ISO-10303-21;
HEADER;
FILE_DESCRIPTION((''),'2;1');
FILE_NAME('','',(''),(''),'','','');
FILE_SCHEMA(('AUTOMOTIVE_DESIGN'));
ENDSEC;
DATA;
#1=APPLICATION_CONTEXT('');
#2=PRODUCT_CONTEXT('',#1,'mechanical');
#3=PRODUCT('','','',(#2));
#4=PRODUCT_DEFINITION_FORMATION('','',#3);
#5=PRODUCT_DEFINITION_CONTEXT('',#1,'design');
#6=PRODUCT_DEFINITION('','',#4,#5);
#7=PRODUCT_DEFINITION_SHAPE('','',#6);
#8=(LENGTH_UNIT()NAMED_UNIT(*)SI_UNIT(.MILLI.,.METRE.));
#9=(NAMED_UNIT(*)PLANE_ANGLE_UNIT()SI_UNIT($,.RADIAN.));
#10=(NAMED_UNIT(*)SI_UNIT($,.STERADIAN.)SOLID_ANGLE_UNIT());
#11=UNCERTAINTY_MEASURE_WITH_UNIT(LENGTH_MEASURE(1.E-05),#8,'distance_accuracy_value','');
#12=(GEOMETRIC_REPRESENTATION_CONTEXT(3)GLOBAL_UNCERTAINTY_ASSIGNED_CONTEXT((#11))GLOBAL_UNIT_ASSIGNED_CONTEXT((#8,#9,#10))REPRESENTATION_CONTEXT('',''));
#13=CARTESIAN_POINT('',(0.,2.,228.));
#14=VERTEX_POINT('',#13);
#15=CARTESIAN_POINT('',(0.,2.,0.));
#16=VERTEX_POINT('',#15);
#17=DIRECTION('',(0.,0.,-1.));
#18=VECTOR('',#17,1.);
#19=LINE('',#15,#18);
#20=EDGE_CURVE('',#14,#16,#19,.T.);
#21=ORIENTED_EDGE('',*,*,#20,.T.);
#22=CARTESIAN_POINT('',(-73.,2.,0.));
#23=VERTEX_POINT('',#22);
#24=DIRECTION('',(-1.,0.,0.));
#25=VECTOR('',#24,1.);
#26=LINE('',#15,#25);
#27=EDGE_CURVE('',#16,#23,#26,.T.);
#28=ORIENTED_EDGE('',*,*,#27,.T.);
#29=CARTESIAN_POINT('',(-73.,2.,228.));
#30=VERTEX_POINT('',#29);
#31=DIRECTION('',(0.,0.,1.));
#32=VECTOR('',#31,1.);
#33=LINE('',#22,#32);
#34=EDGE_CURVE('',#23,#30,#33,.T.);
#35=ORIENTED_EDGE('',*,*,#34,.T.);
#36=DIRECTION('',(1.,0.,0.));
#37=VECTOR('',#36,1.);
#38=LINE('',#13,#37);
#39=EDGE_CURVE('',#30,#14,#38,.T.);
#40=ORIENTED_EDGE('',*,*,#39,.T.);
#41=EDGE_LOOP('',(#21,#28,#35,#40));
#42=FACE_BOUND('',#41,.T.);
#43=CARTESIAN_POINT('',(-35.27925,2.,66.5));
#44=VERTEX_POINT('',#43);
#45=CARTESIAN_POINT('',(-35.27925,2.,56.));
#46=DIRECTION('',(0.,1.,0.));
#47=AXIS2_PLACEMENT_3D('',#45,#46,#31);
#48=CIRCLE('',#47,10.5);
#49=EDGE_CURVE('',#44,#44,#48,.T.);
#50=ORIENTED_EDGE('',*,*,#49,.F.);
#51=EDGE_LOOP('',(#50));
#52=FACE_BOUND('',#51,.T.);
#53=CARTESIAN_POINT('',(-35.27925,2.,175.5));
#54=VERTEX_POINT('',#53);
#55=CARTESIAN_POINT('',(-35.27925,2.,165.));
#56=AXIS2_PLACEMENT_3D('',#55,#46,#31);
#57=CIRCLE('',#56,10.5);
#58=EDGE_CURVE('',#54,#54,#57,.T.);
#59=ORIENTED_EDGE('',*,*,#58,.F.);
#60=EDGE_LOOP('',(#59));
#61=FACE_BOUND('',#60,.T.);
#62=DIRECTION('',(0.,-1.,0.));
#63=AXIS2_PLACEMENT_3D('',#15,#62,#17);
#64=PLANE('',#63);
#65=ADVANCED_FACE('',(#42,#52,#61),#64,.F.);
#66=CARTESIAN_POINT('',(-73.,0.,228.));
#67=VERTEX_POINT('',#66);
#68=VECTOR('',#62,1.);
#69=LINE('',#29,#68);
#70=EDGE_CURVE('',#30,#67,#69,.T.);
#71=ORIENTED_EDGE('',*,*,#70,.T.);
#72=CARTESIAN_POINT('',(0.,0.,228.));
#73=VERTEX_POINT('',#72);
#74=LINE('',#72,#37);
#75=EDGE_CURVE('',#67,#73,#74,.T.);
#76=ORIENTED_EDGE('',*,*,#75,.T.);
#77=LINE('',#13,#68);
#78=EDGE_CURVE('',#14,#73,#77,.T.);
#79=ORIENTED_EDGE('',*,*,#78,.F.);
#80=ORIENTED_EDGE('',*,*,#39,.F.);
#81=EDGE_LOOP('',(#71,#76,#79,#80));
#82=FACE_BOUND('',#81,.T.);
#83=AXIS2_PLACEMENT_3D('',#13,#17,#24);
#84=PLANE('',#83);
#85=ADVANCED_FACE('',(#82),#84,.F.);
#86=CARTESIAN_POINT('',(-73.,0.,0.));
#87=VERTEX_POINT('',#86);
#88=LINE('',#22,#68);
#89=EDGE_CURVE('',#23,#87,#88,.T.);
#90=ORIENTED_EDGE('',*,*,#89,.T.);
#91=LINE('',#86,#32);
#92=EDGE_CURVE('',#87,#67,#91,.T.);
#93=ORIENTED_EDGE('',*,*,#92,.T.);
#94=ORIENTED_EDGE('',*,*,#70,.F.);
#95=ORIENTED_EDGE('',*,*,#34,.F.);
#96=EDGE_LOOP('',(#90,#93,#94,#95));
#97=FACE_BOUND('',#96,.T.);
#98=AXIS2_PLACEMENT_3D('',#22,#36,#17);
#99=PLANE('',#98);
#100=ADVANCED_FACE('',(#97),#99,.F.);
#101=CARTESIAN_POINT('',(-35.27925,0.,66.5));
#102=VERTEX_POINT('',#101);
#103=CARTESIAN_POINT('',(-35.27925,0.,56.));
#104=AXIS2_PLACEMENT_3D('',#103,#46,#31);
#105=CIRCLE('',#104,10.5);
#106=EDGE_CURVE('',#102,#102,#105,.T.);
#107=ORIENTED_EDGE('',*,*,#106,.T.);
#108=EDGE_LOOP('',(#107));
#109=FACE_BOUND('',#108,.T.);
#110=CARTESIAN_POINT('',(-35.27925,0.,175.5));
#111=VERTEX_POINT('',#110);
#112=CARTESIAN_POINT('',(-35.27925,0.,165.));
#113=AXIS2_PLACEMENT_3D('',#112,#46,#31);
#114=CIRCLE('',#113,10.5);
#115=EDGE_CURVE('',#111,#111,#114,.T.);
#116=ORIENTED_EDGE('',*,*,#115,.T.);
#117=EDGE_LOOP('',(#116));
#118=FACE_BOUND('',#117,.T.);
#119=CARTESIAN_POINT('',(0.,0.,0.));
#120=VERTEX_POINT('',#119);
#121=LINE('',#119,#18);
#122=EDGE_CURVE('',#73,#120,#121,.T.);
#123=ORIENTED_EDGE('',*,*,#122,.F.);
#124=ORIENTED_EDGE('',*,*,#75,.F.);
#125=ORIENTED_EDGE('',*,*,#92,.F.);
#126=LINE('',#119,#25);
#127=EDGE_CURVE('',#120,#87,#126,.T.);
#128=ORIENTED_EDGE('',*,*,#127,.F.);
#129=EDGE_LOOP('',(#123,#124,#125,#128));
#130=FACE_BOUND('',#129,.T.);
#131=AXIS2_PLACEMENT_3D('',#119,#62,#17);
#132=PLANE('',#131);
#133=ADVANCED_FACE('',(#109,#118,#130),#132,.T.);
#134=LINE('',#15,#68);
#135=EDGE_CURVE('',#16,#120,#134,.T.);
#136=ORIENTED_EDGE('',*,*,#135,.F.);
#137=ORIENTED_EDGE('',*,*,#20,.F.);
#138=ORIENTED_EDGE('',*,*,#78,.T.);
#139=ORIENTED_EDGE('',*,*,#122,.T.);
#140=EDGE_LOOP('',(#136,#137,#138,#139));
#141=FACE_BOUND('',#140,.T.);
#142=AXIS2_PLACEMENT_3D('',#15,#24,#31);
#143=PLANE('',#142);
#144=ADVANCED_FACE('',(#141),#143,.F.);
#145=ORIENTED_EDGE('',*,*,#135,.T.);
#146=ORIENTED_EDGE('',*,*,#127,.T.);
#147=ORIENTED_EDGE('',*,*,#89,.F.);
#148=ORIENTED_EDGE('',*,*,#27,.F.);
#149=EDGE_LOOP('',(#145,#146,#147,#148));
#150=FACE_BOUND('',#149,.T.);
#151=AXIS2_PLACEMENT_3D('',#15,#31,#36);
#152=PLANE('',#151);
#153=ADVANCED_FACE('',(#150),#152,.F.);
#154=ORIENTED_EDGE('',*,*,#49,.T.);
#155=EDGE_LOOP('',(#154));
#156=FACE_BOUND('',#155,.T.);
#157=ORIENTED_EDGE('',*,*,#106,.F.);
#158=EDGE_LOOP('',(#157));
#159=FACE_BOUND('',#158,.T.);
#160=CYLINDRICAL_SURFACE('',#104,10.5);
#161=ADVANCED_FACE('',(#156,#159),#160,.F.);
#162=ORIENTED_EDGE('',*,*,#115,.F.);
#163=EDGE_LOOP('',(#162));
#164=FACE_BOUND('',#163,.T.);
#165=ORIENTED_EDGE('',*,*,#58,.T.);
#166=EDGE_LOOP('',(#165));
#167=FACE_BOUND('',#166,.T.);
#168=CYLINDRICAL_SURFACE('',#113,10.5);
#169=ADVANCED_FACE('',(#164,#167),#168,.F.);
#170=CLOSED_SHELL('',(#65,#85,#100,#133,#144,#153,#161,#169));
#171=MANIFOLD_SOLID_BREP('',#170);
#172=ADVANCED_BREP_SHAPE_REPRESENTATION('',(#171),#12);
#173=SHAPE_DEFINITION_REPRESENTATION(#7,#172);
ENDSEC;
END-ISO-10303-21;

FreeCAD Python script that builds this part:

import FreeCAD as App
import Part
import Sketcher

V = App.Vector
Q = App.Units.Quantity


def add_polygon(sketch, points):
    """Adds a closed chain of lines whose ends are joined by coincident constraints."""
    first, n = sketch.GeometryCount, len(points)
    for a, b in zip(points, points[1:] + points[:1]):
        sketch.addGeometry(Part.LineSegment(App.Vector(*a, 0), App.Vector(*b, 0)), False)
    for i in range(n):
        sketch.addConstraint(Sketcher.Constraint("Coincident", first + i, 2, first + (i + 1) % n, 1))

doc = App.newDocument("Part")
body = doc.addObject("PartDesign::Body", "Body")

sketch1 = doc.addObject("Sketcher::SketchObject", "Sketch")
body.addObject(sketch1)
sketch1.AttachmentSupport = (doc.XZ_Plane, [""])
sketch1.MapMode = "FlatFace"
add_polygon(sketch1, [(-73, 0), (-73, 228), (0, 228), (0, 0)])
sketch1.addConstraint([
    Sketcher.Constraint("Vertical", 0),
    Sketcher.Constraint("Horizontal", 1),
    Sketcher.Constraint("Vertical", 2),
    Sketcher.Constraint("Horizontal", 3),
    Sketcher.Constraint("Coincident", 2, 2, -1, 1),
    Sketcher.Constraint("DistanceX", 1, 1, 1, 2, Q("73 mm")),
    Sketcher.Constraint("DistanceY", 0, 1, 0, 2, Q("228 mm")),
])
pad1 = doc.addObject("PartDesign::Pad", "Pad")
body.addObject(pad1)
pad1.Profile = sketch1
pad1.Length = 2
pad1.Reversed = True

sketch2 = doc.addObject("Sketcher::SketchObject", "Sketch001")
body.addObject(sketch2)
sketch2.AttachmentSupport = (doc.XZ_Plane, [""])
sketch2.MapMode = "FlatFace"
sketch2.AttachmentOffset = App.Placement(V(0, 0, -2), App.Rotation())
sketch2.addGeometry([
    Part.Circle(V(-35.27925, 56, 0), V(0, 0, 1), 10.5),
    Part.Circle(V(-35.27925, 165, 0), V(0, 0, 1), 10.5),
], False)
sketch2.addConstraint([
    Sketcher.Constraint("Equal", 0, 1),
    Sketcher.Constraint("Vertical", 0, 3, 1, 3),
    Sketcher.Constraint("Diameter", 0, Q("21 mm")),
    Sketcher.Constraint("DistanceY", -1, 1, 0, 3, Q("56 mm")),
    Sketcher.Constraint("DistanceY", -1, 1, 1, 3, Q("165 mm")),
    Sketcher.Constraint("DistanceX", 0, 3, -1, 1, Q("35.27925 mm")),
])
pocket1 = doc.addObject("PartDesign::Pocket", "Pocket")
body.addObject(pocket1)
pocket1.Profile = sketch2
pocket1.Length = 2
pocket1.Reversed = True

doc.recompute()
